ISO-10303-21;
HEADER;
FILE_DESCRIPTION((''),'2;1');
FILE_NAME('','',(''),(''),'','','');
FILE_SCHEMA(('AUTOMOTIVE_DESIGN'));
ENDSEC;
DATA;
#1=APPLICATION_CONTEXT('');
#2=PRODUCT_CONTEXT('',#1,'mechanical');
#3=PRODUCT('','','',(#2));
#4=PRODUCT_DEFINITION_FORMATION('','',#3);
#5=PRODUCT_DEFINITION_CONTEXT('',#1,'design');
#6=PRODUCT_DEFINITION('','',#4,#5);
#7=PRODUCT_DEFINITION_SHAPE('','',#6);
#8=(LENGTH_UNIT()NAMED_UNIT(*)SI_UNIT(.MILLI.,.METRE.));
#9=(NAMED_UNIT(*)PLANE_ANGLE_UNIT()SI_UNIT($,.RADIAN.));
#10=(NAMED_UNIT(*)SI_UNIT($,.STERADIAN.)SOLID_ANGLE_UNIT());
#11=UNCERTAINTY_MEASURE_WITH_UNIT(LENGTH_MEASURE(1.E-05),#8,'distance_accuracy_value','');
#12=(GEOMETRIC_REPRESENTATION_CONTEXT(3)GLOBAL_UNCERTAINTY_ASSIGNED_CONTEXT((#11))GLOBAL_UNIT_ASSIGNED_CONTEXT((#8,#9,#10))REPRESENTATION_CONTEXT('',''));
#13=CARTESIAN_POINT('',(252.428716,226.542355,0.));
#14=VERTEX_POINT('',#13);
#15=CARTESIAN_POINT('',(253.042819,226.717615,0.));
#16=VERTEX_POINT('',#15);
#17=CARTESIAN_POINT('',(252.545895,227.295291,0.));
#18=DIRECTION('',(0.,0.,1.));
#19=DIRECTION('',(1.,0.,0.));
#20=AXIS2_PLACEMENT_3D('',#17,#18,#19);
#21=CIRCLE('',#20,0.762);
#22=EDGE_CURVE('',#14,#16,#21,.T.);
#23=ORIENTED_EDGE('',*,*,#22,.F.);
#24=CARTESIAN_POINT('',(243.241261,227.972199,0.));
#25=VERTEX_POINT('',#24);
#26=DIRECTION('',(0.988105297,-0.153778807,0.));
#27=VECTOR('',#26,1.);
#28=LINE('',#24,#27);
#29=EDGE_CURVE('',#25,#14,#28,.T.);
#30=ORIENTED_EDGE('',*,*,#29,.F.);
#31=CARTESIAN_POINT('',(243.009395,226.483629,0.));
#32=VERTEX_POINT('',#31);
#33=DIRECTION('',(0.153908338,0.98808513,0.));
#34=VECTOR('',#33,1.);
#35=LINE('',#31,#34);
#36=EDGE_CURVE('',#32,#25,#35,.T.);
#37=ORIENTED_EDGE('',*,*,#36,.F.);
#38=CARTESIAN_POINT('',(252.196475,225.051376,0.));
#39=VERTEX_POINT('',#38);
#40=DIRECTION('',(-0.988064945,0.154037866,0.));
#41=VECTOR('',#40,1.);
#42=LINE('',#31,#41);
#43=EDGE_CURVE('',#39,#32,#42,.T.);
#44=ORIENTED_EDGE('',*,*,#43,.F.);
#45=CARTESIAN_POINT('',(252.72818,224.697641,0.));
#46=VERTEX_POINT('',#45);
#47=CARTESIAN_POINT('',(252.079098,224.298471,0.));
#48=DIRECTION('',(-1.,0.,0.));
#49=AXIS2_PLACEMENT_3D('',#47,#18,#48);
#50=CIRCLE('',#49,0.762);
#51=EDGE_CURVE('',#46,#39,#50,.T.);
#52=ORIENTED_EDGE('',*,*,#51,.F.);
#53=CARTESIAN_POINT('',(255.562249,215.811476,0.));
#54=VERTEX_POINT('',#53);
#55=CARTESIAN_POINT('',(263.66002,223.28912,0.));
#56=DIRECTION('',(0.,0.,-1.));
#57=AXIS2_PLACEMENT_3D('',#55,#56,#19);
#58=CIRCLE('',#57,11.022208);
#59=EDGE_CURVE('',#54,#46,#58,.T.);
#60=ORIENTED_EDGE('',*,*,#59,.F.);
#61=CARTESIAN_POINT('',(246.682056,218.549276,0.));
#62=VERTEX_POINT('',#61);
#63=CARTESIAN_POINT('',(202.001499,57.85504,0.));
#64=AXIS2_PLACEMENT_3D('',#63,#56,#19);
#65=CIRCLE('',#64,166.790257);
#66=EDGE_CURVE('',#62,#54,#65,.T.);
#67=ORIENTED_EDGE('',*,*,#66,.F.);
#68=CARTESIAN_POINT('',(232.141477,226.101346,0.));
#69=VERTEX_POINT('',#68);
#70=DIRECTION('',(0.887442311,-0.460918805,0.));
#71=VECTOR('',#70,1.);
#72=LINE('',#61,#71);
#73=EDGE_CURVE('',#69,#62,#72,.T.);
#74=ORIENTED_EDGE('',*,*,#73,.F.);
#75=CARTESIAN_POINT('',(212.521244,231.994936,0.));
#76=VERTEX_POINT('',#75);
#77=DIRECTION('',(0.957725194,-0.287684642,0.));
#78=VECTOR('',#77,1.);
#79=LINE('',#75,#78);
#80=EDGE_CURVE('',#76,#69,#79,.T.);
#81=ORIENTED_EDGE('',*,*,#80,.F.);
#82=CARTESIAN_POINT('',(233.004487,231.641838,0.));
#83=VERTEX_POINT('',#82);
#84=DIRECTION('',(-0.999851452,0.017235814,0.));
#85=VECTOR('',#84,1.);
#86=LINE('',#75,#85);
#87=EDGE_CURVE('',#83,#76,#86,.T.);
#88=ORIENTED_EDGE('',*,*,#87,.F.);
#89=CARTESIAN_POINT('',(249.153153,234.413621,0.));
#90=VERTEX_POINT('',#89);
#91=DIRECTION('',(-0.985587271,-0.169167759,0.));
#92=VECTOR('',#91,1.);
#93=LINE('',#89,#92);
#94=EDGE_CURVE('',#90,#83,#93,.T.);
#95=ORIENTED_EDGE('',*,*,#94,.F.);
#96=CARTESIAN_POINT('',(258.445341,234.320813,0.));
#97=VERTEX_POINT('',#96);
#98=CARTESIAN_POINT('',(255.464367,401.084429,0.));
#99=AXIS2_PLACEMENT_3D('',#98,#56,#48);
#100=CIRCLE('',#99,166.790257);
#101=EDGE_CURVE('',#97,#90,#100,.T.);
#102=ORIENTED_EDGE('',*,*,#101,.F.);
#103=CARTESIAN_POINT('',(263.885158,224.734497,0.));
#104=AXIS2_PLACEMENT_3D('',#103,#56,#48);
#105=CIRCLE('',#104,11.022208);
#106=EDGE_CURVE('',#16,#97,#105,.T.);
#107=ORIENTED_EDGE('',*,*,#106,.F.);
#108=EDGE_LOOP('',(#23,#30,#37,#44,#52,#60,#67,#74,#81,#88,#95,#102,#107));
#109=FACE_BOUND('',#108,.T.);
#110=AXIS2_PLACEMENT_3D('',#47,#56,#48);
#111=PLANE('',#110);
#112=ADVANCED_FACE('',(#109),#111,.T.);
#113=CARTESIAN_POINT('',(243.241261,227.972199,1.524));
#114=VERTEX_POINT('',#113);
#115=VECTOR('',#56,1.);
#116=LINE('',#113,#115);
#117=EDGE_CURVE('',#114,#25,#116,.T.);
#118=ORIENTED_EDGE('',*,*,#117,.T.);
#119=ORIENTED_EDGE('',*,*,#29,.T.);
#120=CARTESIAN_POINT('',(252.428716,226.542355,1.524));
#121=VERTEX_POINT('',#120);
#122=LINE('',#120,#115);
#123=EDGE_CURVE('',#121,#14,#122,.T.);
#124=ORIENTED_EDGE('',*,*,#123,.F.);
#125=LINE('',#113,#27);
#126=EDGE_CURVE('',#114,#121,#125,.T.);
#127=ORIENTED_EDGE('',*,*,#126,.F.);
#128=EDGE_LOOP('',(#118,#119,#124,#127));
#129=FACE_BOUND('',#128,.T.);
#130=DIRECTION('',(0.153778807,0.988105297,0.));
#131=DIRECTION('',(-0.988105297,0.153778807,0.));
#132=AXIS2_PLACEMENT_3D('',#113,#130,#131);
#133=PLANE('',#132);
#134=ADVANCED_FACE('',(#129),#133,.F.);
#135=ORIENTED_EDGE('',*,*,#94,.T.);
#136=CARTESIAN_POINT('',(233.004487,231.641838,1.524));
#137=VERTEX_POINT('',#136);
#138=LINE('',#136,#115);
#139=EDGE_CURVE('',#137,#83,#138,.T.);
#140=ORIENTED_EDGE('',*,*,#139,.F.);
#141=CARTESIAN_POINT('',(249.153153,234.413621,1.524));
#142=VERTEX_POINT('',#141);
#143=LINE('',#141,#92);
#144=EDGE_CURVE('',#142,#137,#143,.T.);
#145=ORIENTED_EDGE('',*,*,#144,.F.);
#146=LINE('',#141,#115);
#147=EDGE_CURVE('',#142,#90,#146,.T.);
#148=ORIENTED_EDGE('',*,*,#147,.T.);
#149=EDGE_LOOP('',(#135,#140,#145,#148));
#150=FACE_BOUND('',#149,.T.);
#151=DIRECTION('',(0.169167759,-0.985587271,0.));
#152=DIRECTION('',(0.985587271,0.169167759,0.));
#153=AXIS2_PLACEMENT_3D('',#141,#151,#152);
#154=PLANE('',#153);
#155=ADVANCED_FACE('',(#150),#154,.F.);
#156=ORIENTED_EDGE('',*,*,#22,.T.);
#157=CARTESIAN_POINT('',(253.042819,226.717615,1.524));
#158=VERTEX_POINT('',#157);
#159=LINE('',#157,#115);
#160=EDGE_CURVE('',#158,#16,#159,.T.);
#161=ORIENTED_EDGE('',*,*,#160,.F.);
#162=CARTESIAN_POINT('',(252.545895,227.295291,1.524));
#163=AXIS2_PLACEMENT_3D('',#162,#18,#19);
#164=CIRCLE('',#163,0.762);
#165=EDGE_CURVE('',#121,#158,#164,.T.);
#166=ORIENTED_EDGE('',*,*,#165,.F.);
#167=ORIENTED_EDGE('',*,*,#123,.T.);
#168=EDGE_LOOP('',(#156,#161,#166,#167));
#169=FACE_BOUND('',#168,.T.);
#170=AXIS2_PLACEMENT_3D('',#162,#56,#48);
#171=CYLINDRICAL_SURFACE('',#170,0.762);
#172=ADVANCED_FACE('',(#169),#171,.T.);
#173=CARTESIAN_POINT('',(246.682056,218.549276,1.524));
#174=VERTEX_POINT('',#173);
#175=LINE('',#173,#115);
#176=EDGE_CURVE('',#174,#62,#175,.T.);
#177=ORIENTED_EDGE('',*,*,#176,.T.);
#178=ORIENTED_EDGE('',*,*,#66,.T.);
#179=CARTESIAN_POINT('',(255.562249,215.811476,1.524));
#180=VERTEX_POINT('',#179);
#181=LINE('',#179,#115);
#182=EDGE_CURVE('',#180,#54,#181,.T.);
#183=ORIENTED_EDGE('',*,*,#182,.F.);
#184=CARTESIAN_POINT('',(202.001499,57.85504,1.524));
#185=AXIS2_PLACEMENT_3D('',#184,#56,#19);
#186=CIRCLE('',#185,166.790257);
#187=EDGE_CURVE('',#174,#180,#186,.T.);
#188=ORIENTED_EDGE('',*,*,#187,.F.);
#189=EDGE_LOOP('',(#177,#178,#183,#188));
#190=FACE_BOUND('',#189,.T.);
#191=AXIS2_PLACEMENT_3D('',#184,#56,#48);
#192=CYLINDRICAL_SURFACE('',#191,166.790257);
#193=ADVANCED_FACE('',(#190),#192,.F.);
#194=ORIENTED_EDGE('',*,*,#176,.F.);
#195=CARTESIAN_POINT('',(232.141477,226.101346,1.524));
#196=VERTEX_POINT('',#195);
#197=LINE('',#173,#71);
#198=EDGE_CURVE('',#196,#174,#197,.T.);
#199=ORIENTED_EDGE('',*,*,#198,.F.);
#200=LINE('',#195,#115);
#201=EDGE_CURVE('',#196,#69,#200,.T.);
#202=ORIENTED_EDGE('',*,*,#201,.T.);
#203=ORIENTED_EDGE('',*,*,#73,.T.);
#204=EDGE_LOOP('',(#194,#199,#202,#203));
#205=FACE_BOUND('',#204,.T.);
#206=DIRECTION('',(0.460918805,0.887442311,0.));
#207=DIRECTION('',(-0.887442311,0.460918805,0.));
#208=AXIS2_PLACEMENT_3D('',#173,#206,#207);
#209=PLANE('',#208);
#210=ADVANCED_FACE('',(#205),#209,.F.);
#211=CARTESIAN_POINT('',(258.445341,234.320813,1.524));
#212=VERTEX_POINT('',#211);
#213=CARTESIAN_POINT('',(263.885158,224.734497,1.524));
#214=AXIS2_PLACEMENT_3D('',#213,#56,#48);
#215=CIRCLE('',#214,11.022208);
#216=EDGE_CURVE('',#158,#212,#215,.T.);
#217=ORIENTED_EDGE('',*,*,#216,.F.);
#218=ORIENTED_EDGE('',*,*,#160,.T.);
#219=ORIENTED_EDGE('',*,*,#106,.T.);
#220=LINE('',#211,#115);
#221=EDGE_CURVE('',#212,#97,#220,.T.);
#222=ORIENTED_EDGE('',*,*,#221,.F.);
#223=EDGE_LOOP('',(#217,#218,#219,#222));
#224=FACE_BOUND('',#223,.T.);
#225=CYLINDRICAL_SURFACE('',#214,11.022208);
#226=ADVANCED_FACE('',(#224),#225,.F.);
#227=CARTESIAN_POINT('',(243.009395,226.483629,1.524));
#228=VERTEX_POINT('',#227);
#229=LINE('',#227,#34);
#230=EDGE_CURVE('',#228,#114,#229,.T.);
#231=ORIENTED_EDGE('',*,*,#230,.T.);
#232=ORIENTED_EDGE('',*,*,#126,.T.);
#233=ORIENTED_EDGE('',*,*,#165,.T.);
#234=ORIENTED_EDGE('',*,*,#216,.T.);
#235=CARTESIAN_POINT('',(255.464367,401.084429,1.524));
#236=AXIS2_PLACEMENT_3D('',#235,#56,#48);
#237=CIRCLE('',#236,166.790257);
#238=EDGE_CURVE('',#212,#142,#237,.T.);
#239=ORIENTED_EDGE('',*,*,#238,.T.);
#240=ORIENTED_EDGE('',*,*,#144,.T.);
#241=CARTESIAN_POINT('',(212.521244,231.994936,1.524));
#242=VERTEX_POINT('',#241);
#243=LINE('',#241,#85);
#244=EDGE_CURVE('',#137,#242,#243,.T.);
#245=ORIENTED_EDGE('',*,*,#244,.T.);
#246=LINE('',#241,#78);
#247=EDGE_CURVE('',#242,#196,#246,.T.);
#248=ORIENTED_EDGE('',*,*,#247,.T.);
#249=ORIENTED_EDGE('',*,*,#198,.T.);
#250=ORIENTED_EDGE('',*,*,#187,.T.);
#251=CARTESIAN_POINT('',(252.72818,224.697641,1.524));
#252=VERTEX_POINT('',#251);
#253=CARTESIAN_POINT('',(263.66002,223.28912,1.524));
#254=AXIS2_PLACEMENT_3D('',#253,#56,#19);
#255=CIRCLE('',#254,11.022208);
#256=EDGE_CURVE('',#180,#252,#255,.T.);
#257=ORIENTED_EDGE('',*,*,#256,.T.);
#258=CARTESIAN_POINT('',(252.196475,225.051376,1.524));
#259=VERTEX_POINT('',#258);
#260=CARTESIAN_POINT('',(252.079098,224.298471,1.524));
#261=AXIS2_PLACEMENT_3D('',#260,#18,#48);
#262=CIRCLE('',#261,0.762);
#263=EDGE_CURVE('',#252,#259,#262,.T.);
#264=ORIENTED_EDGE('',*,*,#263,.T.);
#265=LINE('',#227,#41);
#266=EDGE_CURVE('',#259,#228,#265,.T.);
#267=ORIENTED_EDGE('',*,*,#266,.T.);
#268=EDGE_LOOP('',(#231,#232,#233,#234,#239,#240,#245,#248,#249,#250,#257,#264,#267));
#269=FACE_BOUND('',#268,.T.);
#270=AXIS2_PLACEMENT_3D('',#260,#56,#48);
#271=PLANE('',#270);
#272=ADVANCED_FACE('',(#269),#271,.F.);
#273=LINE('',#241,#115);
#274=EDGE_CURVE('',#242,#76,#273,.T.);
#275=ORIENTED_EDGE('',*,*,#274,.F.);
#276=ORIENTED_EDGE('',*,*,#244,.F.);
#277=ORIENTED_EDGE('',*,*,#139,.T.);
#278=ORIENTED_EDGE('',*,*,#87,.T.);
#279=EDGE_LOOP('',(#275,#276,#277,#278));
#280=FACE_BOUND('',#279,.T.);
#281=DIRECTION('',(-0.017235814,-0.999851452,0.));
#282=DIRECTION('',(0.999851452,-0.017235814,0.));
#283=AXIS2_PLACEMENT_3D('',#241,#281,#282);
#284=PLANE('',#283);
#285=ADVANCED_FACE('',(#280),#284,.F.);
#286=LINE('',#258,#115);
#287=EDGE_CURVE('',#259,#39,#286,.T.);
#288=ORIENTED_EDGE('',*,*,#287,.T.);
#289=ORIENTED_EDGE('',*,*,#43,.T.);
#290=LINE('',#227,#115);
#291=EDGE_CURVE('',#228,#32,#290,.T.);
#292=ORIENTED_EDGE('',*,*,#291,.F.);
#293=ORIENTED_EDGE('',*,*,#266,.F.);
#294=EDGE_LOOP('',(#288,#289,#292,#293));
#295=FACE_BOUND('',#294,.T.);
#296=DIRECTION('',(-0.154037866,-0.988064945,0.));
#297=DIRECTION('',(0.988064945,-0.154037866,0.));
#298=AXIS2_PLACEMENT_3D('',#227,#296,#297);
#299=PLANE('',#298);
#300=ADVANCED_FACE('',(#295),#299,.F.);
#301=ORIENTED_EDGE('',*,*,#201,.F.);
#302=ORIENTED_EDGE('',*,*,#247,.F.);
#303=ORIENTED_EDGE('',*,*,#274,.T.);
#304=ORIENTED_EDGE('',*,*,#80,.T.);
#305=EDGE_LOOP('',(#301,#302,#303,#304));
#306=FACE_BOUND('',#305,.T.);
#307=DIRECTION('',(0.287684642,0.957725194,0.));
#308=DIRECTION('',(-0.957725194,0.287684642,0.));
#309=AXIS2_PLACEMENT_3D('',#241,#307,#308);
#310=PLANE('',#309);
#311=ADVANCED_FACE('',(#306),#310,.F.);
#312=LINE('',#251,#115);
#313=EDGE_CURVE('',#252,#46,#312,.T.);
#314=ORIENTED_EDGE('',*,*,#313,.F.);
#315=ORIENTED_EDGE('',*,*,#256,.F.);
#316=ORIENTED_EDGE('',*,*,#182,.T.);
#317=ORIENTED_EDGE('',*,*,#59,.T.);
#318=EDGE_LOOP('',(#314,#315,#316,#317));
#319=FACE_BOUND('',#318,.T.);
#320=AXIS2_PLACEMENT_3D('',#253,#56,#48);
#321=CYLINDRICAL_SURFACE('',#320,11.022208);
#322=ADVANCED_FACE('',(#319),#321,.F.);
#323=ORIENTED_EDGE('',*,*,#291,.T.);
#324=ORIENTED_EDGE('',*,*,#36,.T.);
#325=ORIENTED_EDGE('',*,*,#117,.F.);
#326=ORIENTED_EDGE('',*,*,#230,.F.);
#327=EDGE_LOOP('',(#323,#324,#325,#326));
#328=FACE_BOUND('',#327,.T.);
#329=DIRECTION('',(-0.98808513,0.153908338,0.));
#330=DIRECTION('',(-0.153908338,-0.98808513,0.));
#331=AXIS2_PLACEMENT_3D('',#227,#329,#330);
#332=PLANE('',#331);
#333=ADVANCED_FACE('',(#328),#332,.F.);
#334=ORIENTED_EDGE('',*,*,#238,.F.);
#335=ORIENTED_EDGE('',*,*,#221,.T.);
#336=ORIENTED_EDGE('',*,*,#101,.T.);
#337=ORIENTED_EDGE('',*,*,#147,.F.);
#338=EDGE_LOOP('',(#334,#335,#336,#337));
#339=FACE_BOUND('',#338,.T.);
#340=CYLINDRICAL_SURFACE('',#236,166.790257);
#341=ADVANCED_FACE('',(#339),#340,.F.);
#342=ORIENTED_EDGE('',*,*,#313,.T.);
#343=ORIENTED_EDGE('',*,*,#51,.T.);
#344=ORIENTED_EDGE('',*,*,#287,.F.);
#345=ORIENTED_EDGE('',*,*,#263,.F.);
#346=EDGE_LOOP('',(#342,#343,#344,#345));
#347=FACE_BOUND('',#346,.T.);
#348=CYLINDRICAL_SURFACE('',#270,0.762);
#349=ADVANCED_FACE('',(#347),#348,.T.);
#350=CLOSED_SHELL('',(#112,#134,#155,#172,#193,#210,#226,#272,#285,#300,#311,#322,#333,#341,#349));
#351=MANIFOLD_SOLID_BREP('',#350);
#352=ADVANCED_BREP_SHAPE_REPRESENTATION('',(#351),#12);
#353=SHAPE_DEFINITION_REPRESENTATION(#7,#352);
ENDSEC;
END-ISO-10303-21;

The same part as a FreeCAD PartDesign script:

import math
import FreeCAD as App
import Part
import Sketcher

V = App.Vector
Q = App.Units.Quantity

doc = App.newDocument("Part")
body = doc.addObject("PartDesign::Body", "Body")

sketch1 = body.newObject("Sketcher::SketchObject", "Sketch")
sketch1.AttachmentSupport = (doc.getObject("XY_Plane"), [""])
sketch1.MapMode = "FlatFace"
sketch1.addGeometry([
    Part.LineSegment(V(252.2, 225.1, 0), V(243, 226.5, 0)),
    Part.LineSegment(V(243, 226.5, 0), V(243.2, 228, 0)),
    Part.LineSegment(V(243.2, 228, 0), V(252.4, 226.5, 0)),
    Part.ArcOfCircle(Part.Circle(V(252.5, 227.3, 0), V(0, 0, 1), 0.8), math.radians(-99), math.radians(-49)),
    Part.ArcOfCircle(Part.Circle(V(263.9, 224.7, 0), V(0, 0, 1), 11), math.radians(120), math.radians(170)),
    Part.ArcOfCircle(Part.Circle(V(255.5, 401.1, 0), V(0, 0, 1), 166.8), math.radians(-92.17), math.radians(-88.98)),
    Part.LineSegment(V(249.2, 234.4, 0), V(233, 231.6, 0)),
    Part.LineSegment(V(233, 231.6, 0), V(212.5, 232, 0)),
    Part.LineSegment(V(212.5, 232, 0), V(232.1, 226.1, 0)),
    Part.LineSegment(V(232.1, 226.1, 0), V(246.7, 218.5, 0)),
    Part.ArcOfCircle(Part.Circle(V(202, 57.9, 0), V(0, 0, 1), 166.8), math.radians(71.27), math.radians(74.46)),
    Part.ArcOfCircle(Part.Circle(V(263.7, 223.3, 0), V(0, 0, 1), 11), math.radians(173), math.radians(223)),
    Part.ArcOfCircle(Part.Circle(V(252.1, 224.3, 0), V(0, 0, 1), 0.8), math.radians(32), math.radians(81)),
], False)
sketch1.addConstraint([
    Sketcher.Constraint("Coincident", 0, 2, 1, 1),
    Sketcher.Constraint("Coincident", 1, 2, 2, 1),
    Sketcher.Constraint("Tangent", 2, 2, 3, 1),
    Sketcher.Constraint("Coincident", 3, 2, 4, 2),
    Sketcher.Constraint("Coincident", 4, 1, 5, 2),
    Sketcher.Constraint("Coincident", 5, 1, 6, 1),
    Sketcher.Constraint("Coincident", 6, 2, 7, 1),
    Sketcher.Constraint("Coincident", 7, 2, 8, 1),
    Sketcher.Constraint("Coincident", 8, 2, 9, 1),
    Sketcher.Constraint("Coincident", 9, 2, 10, 2),
    Sketcher.Constraint("Coincident", 10, 1, 11, 2),
    Sketcher.Constraint("Coincident", 11, 1, 12, 1),
    Sketcher.Constraint("Tangent", 12, 2, 0, 1),
    Sketcher.Constraint("Equal", 5, 10),
    Sketcher.Constraint("Equal", 4, 11),
    Sketcher.Constraint("Equal", 3, 12),
    Sketcher.Constraint("Equal", 0, 2),
    Sketcher.Constraint("Equal", 7, 8),
    Sketcher.Constraint("Equal", 6, 9),
    Sketcher.Constraint("Radius", 3, Q("0.03 in")),
    Sketcher.Constraint("Radius", 4, 11.022208),
    Sketcher.Constraint("Radius", 5, 166.790258),
    Sketcher.Constraint("DistanceY", 2, 2, 3, 2, Q("0.0069 in")),
    Sketcher.Constraint("DistanceY", 12, 2, 2, 2, Q("0.0586999 in")),
    Sketcher.Constraint("DistanceX", -1, 1, 10, 3, 202.001499),
    Sketcher.Constraint("DistanceY", -1, 1, 1, 2, 227.972199),
    Sketcher.Constraint("DistanceX", 10, 3, 12, 3, 50.077599),
    Sketcher.Constraint("DistanceX", 0, 2, 3, 3, 9.536501),
    Sketcher.Constraint("DistanceY", 4, 3, 1, 2, 3.237702),
    Sketcher.Constraint("DistanceY", 3, 2, 4, 1, 7.603198),
    Sketcher.Constraint("DistanceY", 10, 1, 9, 2, 2.7378),
    Sketcher.Constraint("Distance", 1, 1.50652),
    Sketcher.Constraint("DistanceY", -1, 1, 3, 3, 227.295291),
    Sketcher.Constraint("DistanceX", -1, 1, 4, 3, 263.885158),
    Sketcher.Constraint("DistanceY", -1, 1, 5, 3, 401.08443),
    Sketcher.Constraint("DistanceY", -1, 1, 10, 3, 57.85504),
    Sketcher.Constraint("DistanceX", -1, 1, 11, 3, 263.66002),
    Sketcher.Constraint("DistanceY", -1, 1, 11, 3, 223.28912),
    Sketcher.Constraint("DistanceY", 1, 2, 6, 2, 3.669639),
    Sketcher.Constraint("DistanceX", 6, 2, 3, 3, 19.541408),
    Sketcher.Constraint("DistanceX", 7, 2, 0, 2, 30.488151),
    Sketcher.Constraint("DistanceY", 2, 2, 7, 2, 5.452581),
    Sketcher.Constraint("DistanceX", 8, 2, 6, 2, 0.863011),
])
pad1 = body.newObject("PartDesign::Pad", "Pad")
pad1.Profile = sketch1
pad1.Length = Q("0.06 in")

doc.recompute()
